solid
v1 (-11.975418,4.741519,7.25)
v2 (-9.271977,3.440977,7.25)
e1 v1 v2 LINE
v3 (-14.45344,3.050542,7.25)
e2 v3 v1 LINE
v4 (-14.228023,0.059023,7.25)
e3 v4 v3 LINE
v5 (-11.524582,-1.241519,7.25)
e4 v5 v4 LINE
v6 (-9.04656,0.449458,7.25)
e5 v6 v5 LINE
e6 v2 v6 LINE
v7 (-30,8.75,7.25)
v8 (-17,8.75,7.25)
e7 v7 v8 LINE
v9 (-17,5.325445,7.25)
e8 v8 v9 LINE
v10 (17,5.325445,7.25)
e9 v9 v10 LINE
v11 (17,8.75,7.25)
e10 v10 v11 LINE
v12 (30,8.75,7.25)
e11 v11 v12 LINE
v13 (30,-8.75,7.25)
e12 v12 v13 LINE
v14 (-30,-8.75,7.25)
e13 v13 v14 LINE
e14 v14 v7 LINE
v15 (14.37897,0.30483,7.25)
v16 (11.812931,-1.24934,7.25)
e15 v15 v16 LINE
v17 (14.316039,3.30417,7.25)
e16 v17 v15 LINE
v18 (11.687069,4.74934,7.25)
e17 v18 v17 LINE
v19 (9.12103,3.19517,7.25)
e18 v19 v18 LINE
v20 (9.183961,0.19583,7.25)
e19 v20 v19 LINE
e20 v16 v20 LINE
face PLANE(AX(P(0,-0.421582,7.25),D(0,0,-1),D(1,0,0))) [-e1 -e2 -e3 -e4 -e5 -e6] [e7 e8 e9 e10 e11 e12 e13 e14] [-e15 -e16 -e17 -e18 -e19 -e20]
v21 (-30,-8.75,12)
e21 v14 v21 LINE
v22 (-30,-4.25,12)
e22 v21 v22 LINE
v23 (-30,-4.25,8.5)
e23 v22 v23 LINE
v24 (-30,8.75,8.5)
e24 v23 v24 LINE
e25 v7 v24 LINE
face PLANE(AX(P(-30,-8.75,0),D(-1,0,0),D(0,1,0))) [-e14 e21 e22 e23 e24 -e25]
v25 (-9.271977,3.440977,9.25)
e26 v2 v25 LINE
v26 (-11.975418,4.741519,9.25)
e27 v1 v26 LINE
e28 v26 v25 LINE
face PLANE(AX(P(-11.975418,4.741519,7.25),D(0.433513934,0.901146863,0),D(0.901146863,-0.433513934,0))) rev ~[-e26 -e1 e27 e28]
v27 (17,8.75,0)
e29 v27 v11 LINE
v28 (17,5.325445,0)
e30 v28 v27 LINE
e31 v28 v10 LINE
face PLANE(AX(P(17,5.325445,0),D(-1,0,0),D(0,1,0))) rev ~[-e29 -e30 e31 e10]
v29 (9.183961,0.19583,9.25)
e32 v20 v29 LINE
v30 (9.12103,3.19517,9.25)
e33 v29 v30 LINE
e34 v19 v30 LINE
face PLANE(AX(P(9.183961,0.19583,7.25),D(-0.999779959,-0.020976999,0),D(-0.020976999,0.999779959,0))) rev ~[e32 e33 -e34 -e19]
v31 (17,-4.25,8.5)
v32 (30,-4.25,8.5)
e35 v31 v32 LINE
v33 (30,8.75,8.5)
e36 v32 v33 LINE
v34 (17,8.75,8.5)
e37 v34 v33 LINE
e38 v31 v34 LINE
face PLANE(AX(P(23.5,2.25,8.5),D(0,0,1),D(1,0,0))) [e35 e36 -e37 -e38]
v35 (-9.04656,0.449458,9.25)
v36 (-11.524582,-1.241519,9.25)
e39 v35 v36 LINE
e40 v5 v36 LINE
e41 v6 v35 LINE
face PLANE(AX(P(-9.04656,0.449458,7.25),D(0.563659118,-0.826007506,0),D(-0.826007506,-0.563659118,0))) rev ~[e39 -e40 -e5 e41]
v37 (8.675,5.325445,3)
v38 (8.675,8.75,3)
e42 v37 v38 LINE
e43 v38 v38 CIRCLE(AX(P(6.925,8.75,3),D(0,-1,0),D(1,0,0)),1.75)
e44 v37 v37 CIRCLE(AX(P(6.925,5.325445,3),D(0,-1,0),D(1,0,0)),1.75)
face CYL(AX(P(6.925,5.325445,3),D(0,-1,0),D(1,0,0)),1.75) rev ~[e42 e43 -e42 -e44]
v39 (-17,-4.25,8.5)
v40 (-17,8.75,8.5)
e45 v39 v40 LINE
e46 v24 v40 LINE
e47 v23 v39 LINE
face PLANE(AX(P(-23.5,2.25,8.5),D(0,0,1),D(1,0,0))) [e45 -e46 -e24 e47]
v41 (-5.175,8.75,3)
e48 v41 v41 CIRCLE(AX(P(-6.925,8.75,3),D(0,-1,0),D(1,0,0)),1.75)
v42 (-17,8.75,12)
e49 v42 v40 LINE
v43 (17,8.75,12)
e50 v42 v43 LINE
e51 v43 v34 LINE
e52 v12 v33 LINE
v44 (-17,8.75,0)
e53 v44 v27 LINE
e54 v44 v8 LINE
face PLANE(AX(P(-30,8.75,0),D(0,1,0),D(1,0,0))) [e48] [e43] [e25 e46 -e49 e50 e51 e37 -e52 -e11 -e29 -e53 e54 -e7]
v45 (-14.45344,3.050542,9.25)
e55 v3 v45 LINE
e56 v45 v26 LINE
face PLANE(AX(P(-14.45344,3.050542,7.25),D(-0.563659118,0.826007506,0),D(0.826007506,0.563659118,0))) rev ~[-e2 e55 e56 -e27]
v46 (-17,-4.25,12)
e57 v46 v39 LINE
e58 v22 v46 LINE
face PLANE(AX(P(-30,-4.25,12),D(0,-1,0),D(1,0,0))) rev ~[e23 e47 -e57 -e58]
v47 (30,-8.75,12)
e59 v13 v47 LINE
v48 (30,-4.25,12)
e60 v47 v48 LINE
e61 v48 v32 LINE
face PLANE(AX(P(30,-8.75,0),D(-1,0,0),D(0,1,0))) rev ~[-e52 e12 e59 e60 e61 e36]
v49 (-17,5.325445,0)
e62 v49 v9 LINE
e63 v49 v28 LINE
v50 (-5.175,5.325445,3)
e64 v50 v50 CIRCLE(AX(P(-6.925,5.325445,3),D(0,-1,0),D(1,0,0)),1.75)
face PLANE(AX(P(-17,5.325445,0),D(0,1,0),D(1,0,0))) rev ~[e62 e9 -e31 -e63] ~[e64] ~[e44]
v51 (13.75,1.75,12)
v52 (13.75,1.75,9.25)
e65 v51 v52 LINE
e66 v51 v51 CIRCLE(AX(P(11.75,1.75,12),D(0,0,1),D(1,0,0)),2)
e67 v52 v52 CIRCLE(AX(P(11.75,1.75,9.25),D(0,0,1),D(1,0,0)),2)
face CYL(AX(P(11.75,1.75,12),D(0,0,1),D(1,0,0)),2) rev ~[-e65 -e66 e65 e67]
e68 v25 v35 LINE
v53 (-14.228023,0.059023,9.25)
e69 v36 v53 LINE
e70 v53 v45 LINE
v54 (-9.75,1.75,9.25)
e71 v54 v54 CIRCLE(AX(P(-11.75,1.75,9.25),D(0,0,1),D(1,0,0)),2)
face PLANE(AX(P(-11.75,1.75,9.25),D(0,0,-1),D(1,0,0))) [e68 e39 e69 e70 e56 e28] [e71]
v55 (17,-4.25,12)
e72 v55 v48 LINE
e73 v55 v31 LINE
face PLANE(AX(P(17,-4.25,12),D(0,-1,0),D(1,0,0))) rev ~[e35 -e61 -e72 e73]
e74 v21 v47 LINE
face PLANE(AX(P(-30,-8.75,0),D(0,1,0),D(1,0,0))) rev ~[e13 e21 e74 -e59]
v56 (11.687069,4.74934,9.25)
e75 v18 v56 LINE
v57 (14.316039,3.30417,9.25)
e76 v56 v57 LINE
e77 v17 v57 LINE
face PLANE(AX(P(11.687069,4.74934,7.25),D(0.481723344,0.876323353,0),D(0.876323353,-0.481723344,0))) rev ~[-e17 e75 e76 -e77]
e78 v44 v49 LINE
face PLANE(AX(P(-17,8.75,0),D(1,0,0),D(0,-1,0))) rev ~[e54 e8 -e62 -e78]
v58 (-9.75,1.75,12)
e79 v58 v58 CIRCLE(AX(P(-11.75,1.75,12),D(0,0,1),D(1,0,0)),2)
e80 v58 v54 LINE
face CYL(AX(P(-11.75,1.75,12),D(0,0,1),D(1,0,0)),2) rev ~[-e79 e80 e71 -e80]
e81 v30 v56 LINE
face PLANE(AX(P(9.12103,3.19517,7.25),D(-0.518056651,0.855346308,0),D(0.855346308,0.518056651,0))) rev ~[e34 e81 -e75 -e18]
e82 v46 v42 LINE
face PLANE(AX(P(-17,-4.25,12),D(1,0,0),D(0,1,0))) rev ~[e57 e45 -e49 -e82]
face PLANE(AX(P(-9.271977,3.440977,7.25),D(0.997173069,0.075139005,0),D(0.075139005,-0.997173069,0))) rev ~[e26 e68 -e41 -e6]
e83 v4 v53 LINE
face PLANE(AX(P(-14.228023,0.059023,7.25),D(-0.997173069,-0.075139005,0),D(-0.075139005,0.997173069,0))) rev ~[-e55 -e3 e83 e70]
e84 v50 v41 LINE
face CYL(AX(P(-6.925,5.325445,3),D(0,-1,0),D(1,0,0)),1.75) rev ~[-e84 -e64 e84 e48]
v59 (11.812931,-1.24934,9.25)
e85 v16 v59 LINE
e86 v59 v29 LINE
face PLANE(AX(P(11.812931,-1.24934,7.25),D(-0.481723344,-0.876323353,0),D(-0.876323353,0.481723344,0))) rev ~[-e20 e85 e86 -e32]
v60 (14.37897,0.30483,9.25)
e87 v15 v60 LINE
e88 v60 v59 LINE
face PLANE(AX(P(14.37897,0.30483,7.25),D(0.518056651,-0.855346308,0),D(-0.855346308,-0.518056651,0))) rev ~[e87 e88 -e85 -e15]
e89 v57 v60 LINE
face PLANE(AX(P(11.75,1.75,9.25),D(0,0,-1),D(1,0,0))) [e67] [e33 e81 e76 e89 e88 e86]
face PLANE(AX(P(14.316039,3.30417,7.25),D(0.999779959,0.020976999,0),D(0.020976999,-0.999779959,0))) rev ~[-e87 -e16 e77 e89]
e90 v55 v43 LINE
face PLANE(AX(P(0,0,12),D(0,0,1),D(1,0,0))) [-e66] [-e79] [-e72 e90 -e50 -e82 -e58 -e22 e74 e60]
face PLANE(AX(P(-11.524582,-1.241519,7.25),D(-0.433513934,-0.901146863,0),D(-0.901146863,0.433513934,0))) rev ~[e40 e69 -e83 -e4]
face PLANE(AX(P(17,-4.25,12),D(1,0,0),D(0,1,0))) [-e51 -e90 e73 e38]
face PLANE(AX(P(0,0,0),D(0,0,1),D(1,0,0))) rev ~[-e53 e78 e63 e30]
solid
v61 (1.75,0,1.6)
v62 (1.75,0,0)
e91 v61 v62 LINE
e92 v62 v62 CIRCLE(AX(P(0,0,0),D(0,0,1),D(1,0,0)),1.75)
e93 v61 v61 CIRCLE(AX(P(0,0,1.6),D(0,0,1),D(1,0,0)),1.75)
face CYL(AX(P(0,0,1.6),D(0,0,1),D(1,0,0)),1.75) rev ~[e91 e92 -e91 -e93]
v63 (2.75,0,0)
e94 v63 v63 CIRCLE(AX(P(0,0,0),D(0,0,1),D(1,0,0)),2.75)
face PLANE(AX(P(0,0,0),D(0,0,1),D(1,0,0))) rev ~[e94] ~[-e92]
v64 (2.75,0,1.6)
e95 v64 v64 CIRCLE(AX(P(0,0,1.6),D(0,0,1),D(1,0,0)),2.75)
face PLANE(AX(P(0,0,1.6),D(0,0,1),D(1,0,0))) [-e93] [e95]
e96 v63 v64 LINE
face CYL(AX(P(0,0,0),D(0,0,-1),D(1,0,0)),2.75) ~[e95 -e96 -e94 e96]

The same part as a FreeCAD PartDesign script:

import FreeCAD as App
import Part
import Sketcher
Q = App.Units.Quantity

doc = App.newDocument("Part")
params = doc.addObject("Spreadsheet::Sheet", "Params")
for row, (alias, value) in enumerate([
    ("sketch1_width", "60 mm"),
    ("sketch1_height", "17.5 mm"),
    ("pad1_length", "12 mm"),
    ("sketch2_diameter", "4 mm"),
    ("sketch3_width", "13 mm"),
    ("pocket2_length", "3.5 mm"),
    ("sketch4_width", "13 mm"),
    ("sketch4_width2", "34 mm"),
    ("sketch4_height", "17.5 mm"),
    ("pocket3_length", "7.25 mm"),
    ("sketch5_length", "3 mm"),
    ("pocket4_length", "2 mm"),
    ("sketch6_diameter", "3.5 mm"),
    ("pocket5_length", "5 mm"),
    ("sketch7_diameter", "5.5 mm"),
    ("pad2_length", "1.6 mm"),
    ("sketch8_diameter", "3.5 mm"),
    ("pocket6_length", "5 mm"),
], start=1):
    params.set(f"A{row}", alias)
    params.set(f"B{row}", "=" + value)
    params.setAlias(f"B{row}", alias)

body = doc.addObject("PartDesign::Body", "Body")

sketch1 = doc.addObject("Sketcher::SketchObject", "Sketch")
body.addObject(sketch1)
sketch1.AttachmentSupport = (doc.XY_Plane, [""])
sketch1.MapMode = "FlatFace"
sketch1.addGeometry([
    Part.LineSegment(App.Vector(-30, 9, 0), App.Vector(-30, -9, 0)),
    Part.LineSegment(App.Vector(-30, -9, 0), App.Vector(30, -9, 0)),
    Part.LineSegment(App.Vector(30, -9, 0), App.Vector(30, 9, 0)),
    Part.LineSegment(App.Vector(30, 9, 0), App.Vector(-30, 9, 0)),
], False)
sketch1.addConstraint([
    Sketcher.Constraint("Coincident", 0, 2, 1, 1),
    Sketcher.Constraint("Coincident", 1, 2, 2, 1),
    Sketcher.Constraint("Coincident", 2, 2, 3, 1),
    Sketcher.Constraint("Coincident", 3, 2, 0, 1),
    Sketcher.Constraint("Vertical", 0),
    Sketcher.Constraint("Horizontal", 1),
    Sketcher.Constraint("Vertical", 2),
    Sketcher.Constraint("Horizontal", 3),
    Sketcher.Constraint("Symmetric", 0, 2, 2, 2, -1, 1),
    Sketcher.Constraint("DistanceX", 1, 1, 1, 2, Q("60 mm")),
    Sketcher.Constraint("DistanceY", 0, 2, 0, 1, Q("17.5 mm")),
])
sketch1.setExpression("Constraints[9]", "Params.sketch1_width")
sketch1.setExpression("Constraints[10]", "Params.sketch1_height")
pad1 = doc.addObject("PartDesign::Pad", "Pad")
body.addObject(pad1)
pad1.Profile = sketch1
pad1.setExpression("Length", "Params.pad1_length")

sketch2 = doc.addObject("Sketcher::SketchObject", "Sketch001")
body.addObject(sketch2)
sketch2.AttachmentSupport = (doc.XY_Plane, [""])
sketch2.MapMode = "FlatFace"
sketch2.AttachmentOffset = App.Placement(App.Vector(0, 0, 12), App.Rotation())
sketch2.addGeometry([
    Part.Circle(App.Vector(-11.8, 1.8, 0), App.Vector(0, 0, 1), 2),
    Part.Circle(App.Vector(11.8, 1.8, 0), App.Vector(0, 0, 1), 2),
], False)
sketch2.addConstraint([
    Sketcher.Constraint("Equal", 0, 1),
    Sketcher.Constraint("Symmetric", 0, 3, 1, 3, -2),
    Sketcher.Constraint("Diameter", 0, Q("4 mm")),
    Sketcher.Constraint("DistanceX", 0, 3, 1, 3, Q("23.5 mm")),
    Sketcher.Constraint("DistanceY", -1, 1, 0, 3, Q("1.75 mm")),
])
sketch2.setExpression("Constraints[2]", "Params.sketch2_diameter")
pocket1 = doc.addObject("PartDesign::Pocket", "Pocket")
body.addObject(pocket1)
pocket1.Profile = sketch2
pocket1.Type = "ThroughAll"

sketch3 = doc.addObject("Sketcher::SketchObject", "Sketch002")
body.addObject(sketch3)
sketch3.AttachmentSupport = (doc.XY_Plane, [""])
sketch3.MapMode = "FlatFace"
sketch3.AttachmentOffset = App.Placement(App.Vector(0, 0, 12), App.Rotation())
sketch3.addGeometry([
    Part.LineSegment(App.Vector(-30, 9, 0), App.Vector(-30, -4, 0)),
    Part.LineSegment(App.Vector(-30, -4, 0), App.Vector(-17, -4, 0)),
    Part.LineSegment(App.Vector(-17, -4, 0), App.Vector(-17, 9, 0)),
    Part.LineSegment(App.Vector(-17, 9, 0), App.Vector(-30, 9, 0)),
    Part.LineSegment(App.Vector(17, 9, 0), App.Vector(17, -4, 0)),
    Part.LineSegment(App.Vector(17, -4, 0), App.Vector(30, -4, 0)),
    Part.LineSegment(App.Vector(30, -4, 0), App.Vector(30, 9, 0)),
    Part.LineSegment(App.Vector(30, 9, 0), App.Vector(17, 9, 0)),
], False)
sketch3.addConstraint([
    Sketcher.Constraint("Coincident", 0, 2, 1, 1),
    Sketcher.Constraint("Coincident", 1, 2, 2, 1),
    Sketcher.Constraint("Coincident", 2, 2, 3, 1),
    Sketcher.Constraint("Coincident", 3, 2, 0, 1),
    Sketcher.Constraint("Coincident", 4, 2, 5, 1),
    Sketcher.Constraint("Coincident", 5, 2, 6, 1),
    Sketcher.Constraint("Coincident", 6, 2, 7, 1),
    Sketcher.Constraint("Coincident", 7, 2, 4, 1),
    Sketcher.Constraint("Vertical", 0),
    Sketcher.Constraint("Horizontal", 1),
    Sketcher.Constraint("Vertical", 2),
    Sketcher.Constraint("Horizontal", 3),
    Sketcher.Constraint("Vertical", 4),
    Sketcher.Constraint("Horizontal", 5),
    Sketcher.Constraint("Vertical", 6),
    Sketcher.Constraint("Horizontal", 7),
    Sketcher.Constraint("Symmetric", 1, 2, 4, 2, -2),
    Sketcher.Constraint("Symmetric", 3, 2, 6, 2, -2),
    Sketcher.Constraint("Equal", 7, 0),
    Sketcher.Constraint("DistanceX", 1, 1, 1, 2, Q("13 mm")),
    Sketcher.Constraint("DistanceX", 0, 2, -1, 1, Q("30 mm")),
    Sketcher.Constraint("DistanceY", 0, 2, -1, 1, Q("4.25 mm")),
])
sketch3.setExpression("Constraints[19]", "Params.sketch3_width")
pocket2 = doc.addObject("PartDesign::Pocket", "Pocket001")
body.addObject(pocket2)
pocket2.Profile = sketch3
pocket2.setExpression("Length", "Params.pocket2_length")

sketch4 = doc.addObject("Sketcher::SketchObject", "Sketch003")
body.addObject(sketch4)
sketch4.AttachmentSupport = (doc.XY_Plane, [""])
sketch4.MapMode = "FlatFace"
sketch4.addGeometry([
    Part.LineSegment(App.Vector(-30, -8.8, 0), App.Vector(-30, 8.8, 0)),
    Part.LineSegment(App.Vector(-30, 8.8, 0), App.Vector(-17, 8.8, 0)),
    Part.LineSegment(App.Vector(-17, 8.8, 0), App.Vector(-17, 5.3, 0)),
    Part.LineSegment(App.Vector(-17, 5.3, 0), App.Vector(17, 5.3, 0)),
    Part.LineSegment(App.Vector(17, 5.3, 0), App.Vector(17, 8.8, 0)),
    Part.LineSegment(App.Vector(17, 8.8, 0), App.Vector(30, 8.8, 0)),
    Part.LineSegment(App.Vector(30, 8.8, 0), App.Vector(30, -8.8, 0)),
    Part.LineSegment(App.Vector(30, -8.8, 0), App.Vector(-30, -8.8, 0)),
], False)
sketch4.addConstraint([
    Sketcher.Constraint("Coincident", 0, 2, 1, 1),
    Sketcher.Constraint("Coincident", 1, 2, 2, 1),
    Sketcher.Constraint("Coincident", 2, 2, 3, 1),
    Sketcher.Constraint("Coincident", 3, 2, 4, 1),
    Sketcher.Constraint("Coincident", 4, 2, 5, 1),
    Sketcher.Constraint("Coincident", 5, 2, 6, 1),
    Sketcher.Constraint("Coincident", 6, 2, 7, 1),
    Sketcher.Constraint("Coincident", 7, 2, 0, 1),
    Sketcher.Constraint("Vertical", 0),
    Sketcher.Constraint("Horizontal", 1),
    Sketcher.Constraint("Vertical", 2),
    Sketcher.Constraint("Horizontal", 3),
    Sketcher.Constraint("Vertical", 4),
    Sketcher.Constraint("Horizontal", 5),
    Sketcher.Constraint("Vertical", 6),
    Sketcher.Constraint("Horizontal", 7),
    Sketcher.Constraint("Symmetric", 0, 2, 6, 2, -1, 1),
    Sketcher.Constraint("Symmetric", 1, 2, 4, 2, -2),
    Sketcher.Constraint("DistanceX", 1, 1, 1, 2, Q("13 mm")),
    Sketcher.Constraint("DistanceX", 3, 1, 3, 2, Q("34 mm")),
    Sketcher.Constraint("DistanceY", 0, 1, 0, 2, Q("17.5 mm")),
    Sketcher.Constraint("DistanceY", 2, 2, 2, 1, Q("3.424555 mm")),
])
sketch4.setExpression("Constraints[18]", "Params.sketch4_width")
sketch4.setExpression("Constraints[19]", "Params.sketch4_width2")
sketch4.setExpression("Constraints[20]", "Params.sketch4_height")
pocket3 = doc.addObject("PartDesign::Pocket", "Pocket002")
body.addObject(pocket3)
pocket3.Profile = sketch4
pocket3.setExpression("Length", "Params.pocket3_length")
pocket3.Reversed = True

sketch5 = doc.addObject("Sketcher::SketchObject", "Sketch004")
body.addObject(sketch5)
sketch5.AttachmentSupport = (doc.XY_Plane, [""])
sketch5.MapMode = "FlatFace"
sketch5.AttachmentOffset = App.Placement(App.Vector(0, 0, 7.25), App.Rotation())
sketch5.addGeometry([
    Part.LineSegment(App.Vector(-9.3, 3.4, 0), App.Vector(-9, 0.4, 0)),
    Part.LineSegment(App.Vector(-9, 0.4, 0), App.Vector(-11.5, -1.2, 0)),
    Part.LineSegment(App.Vector(-11.5, -1.2, 0), App.Vector(-14.2, 0.1, 0)),
    Part.LineSegment(App.Vector(-14.2, 0.1, 0), App.Vector(-14.5, 3.1, 0)),
    Part.LineSegment(App.Vector(-14.5, 3.1, 0), App.Vector(-12, 4.7, 0)),
    Part.LineSegment(App.Vector(-12, 4.7, 0), App.Vector(-9.3, 3.4, 0)),
    Part.LineSegment(App.Vector(14.3, 3.3, 0), App.Vector(14.4, 0.3, 0)),
    Part.LineSegment(App.Vector(14.4, 0.3, 0), App.Vector(11.8, -1.2, 0)),
    Part.LineSegment(App.Vector(11.8, -1.2, 0), App.Vector(9.2, 0.2, 0)),
    Part.LineSegment(App.Vector(9.2, 0.2, 0), App.Vector(9.1, 3.2, 0)),
    Part.LineSegment(App.Vector(9.1, 3.2, 0), App.Vector(11.7, 4.7, 0)),
    Part.LineSegment(App.Vector(11.7, 4.7, 0), App.Vector(14.3, 3.3, 0)),
], False)
sketch5.addConstraint([
    Sketcher.Constraint("Coincident", 0, 2, 1, 1),
    Sketcher.Constraint("Coincident", 1, 2, 2, 1),
    Sketcher.Constraint("Coincident", 2, 2, 3, 1),
    Sketcher.Constraint("Coincident", 3, 2, 4, 1),
    Sketcher.Constraint("Coincident", 4, 2, 5, 1),
    Sketcher.Constraint("Coincident", 5, 2, 0, 1),
    Sketcher.Constraint("Coincident", 6, 2, 7, 1),
    Sketcher.Constraint("Coincident", 7, 2, 8, 1),
    Sketcher.Constraint("Coincident", 8, 2, 9, 1),
    Sketcher.Constraint("Coincident", 9, 2, 10, 1),
    Sketcher.Constraint("Coincident", 10, 2, 11, 1),
    Sketcher.Constraint("Coincident", 11, 2, 6, 1),
    Sketcher.Constraint("Parallel", 0, 3),
    Sketcher.Constraint("Parallel", 1, 4),
    Sketcher.Constraint("Parallel", 2, 5),
    Sketcher.Constraint("Parallel", 6, 9),
    Sketcher.Constraint("Parallel", 7, 10),
    Sketcher.Constraint("Parallel", 8, 11),
    Sketcher.Constraint("Equal", 0, 1),
    Sketcher.Constraint("Equal", 1, 2),
    Sketcher.Constraint("Equal", 2, 3),
    Sketcher.Constraint("Equal", 5, 6),
    Sketcher.Constraint("Equal", 6, 7),
    Sketcher.Constraint("Equal", 7, 8),
    Sketcher.Constraint("Equal", 8, 9),
    Sketcher.Constraint("Distance", 0, Q("3 mm")),
    Sketcher.Constraint("DistanceY", 8, 2, 6, 2, Q("0.109 mm")),
    Sketcher.Constraint("DistanceX", 9, 2, 7, 2, Q("2.691901 mm")),
    Sketcher.Constraint("DistanceX", 0, 2, -1, 1, Q("9.04656 mm")),
    Sketcher.Constraint("DistanceY", 1, 2, -1, 1, Q("1.241519 mm")),
    Sketcher.Constraint("DistanceX", 3, 2, -1, 1, Q("14.45344 mm")),
    Sketcher.Constraint("DistanceY", -1, 1, 4, 2, Q("4.741519 mm")),
    Sketcher.Constraint("DistanceX", -1, 1, 6, 2, Q("14.37897 mm")),
    Sketcher.Constraint("DistanceY", -1, 1, 6, 2, Q("0.30483 mm")),
    Sketcher.Constraint("DistanceX", -1, 1, 7, 2, Q("11.812931 mm")),
    Sketcher.Constraint("DistanceX", 2, 2, 1, 2, Q("2.703441 mm")),
])
sketch5.setExpression("Constraints[25]", "Params.sketch5_length")
pocket4 = doc.addObject("PartDesign::Pocket", "Pocket003")
body.addObject(pocket4)
pocket4.Profile = sketch5
pocket4.setExpression("Length", "Params.pocket4_length")
pocket4.Reversed = True

sketch6 = doc.addObject("Sketcher::SketchObject", "Sketch005")
body.addObject(sketch6)
sketch6.AttachmentSupport = (doc.XZ_Plane, [""])
sketch6.MapMode = "FlatFace"
sketch6.AttachmentOffset = App.Placement(App.Vector(0, 0, -5.325445), App.Rotation())
sketch6.addGeometry([
    Part.Circle(App.Vector(-6.9, 3, 0), App.Vector(0, 0, 1), 1.8),
    Part.Circle(App.Vector(6.9, 3, 0), App.Vector(0, 0, 1), 1.8),
], False)
sketch6.addConstraint([
    Sketcher.Constraint("Equal", 0, 1),
    Sketcher.Constraint("Symmetric", 0, 3, 1, 3, -2),
    Sketcher.Constraint("Diameter", 0, Q("3.5 mm")),
    Sketcher.Constraint("DistanceY", -1, 1, 0, 3, Q("3 mm")),
    Sketcher.Constraint("DistanceX", 0, 3, 1, 3, Q("13.85 mm")),
])
sketch6.setExpression("Constraints[2]", "Params.sketch6_diameter")
pocket5 = doc.addObject("PartDesign::Pocket", "Pocket004")
body.addObject(pocket5)
pocket5.Profile = sketch6
pocket5.setExpression("Length", "Params.pocket5_length")
body2 = doc.addObject("PartDesign::Body", "Body001")

sketch7 = doc.addObject("Sketcher::SketchObject", "Sketch006")
body2.addObject(sketch7)
sketch7.AttachmentSupport = (doc.getObject("XY_Plane001"), [""])
sketch7.MapMode = "FlatFace"
sketch7.addGeometry(Part.Circle(App.Vector(0, 0, 0), App.Vector(0, 0, 1), 2.8), False)
sketch7.addConstraint([
    Sketcher.Constraint("Coincident", 0, 3, -1, 1),
    Sketcher.Constraint("Diameter", 0, Q("5.5 mm")),
])
sketch7.setExpression("Constraints[1]", "Params.sketch7_diameter")
pad2 = doc.addObject("PartDesign::Pad", "Pad001")
body2.addObject(pad2)
pad2.Profile = sketch7
pad2.setExpression("Length", "Params.pad2_length")

sketch8 = doc.addObject("Sketcher::SketchObject", "Sketch007")
body2.addObject(sketch8)
sketch8.AttachmentSupport = (doc.getObject("XY_Plane001"), [""])
sketch8.MapMode = "FlatFace"
sketch8.AttachmentOffset = App.Placement(App.Vector(0, 0, 1.6), App.Rotation())
sketch8.addGeometry(Part.Circle(App.Vector(0, 0, 0), App.Vector(0, 0, 1), 1.8), False)
sketch8.addConstraint([
    Sketcher.Constraint("Coincident", 0, 3, -1, 1),
    Sketcher.Constraint("Diameter", 0, Q("3.5 mm")),
])
sketch8.setExpression("Constraints[1]", "Params.sketch8_diameter")
pocket6 = doc.addObject("PartDesign::Pocket", "Pocket005")
body2.addObject(pocket6)
pocket6.Profile = sketch8
pocket6.setExpression("Length", "Params.pocket6_length")

doc.recompute()
